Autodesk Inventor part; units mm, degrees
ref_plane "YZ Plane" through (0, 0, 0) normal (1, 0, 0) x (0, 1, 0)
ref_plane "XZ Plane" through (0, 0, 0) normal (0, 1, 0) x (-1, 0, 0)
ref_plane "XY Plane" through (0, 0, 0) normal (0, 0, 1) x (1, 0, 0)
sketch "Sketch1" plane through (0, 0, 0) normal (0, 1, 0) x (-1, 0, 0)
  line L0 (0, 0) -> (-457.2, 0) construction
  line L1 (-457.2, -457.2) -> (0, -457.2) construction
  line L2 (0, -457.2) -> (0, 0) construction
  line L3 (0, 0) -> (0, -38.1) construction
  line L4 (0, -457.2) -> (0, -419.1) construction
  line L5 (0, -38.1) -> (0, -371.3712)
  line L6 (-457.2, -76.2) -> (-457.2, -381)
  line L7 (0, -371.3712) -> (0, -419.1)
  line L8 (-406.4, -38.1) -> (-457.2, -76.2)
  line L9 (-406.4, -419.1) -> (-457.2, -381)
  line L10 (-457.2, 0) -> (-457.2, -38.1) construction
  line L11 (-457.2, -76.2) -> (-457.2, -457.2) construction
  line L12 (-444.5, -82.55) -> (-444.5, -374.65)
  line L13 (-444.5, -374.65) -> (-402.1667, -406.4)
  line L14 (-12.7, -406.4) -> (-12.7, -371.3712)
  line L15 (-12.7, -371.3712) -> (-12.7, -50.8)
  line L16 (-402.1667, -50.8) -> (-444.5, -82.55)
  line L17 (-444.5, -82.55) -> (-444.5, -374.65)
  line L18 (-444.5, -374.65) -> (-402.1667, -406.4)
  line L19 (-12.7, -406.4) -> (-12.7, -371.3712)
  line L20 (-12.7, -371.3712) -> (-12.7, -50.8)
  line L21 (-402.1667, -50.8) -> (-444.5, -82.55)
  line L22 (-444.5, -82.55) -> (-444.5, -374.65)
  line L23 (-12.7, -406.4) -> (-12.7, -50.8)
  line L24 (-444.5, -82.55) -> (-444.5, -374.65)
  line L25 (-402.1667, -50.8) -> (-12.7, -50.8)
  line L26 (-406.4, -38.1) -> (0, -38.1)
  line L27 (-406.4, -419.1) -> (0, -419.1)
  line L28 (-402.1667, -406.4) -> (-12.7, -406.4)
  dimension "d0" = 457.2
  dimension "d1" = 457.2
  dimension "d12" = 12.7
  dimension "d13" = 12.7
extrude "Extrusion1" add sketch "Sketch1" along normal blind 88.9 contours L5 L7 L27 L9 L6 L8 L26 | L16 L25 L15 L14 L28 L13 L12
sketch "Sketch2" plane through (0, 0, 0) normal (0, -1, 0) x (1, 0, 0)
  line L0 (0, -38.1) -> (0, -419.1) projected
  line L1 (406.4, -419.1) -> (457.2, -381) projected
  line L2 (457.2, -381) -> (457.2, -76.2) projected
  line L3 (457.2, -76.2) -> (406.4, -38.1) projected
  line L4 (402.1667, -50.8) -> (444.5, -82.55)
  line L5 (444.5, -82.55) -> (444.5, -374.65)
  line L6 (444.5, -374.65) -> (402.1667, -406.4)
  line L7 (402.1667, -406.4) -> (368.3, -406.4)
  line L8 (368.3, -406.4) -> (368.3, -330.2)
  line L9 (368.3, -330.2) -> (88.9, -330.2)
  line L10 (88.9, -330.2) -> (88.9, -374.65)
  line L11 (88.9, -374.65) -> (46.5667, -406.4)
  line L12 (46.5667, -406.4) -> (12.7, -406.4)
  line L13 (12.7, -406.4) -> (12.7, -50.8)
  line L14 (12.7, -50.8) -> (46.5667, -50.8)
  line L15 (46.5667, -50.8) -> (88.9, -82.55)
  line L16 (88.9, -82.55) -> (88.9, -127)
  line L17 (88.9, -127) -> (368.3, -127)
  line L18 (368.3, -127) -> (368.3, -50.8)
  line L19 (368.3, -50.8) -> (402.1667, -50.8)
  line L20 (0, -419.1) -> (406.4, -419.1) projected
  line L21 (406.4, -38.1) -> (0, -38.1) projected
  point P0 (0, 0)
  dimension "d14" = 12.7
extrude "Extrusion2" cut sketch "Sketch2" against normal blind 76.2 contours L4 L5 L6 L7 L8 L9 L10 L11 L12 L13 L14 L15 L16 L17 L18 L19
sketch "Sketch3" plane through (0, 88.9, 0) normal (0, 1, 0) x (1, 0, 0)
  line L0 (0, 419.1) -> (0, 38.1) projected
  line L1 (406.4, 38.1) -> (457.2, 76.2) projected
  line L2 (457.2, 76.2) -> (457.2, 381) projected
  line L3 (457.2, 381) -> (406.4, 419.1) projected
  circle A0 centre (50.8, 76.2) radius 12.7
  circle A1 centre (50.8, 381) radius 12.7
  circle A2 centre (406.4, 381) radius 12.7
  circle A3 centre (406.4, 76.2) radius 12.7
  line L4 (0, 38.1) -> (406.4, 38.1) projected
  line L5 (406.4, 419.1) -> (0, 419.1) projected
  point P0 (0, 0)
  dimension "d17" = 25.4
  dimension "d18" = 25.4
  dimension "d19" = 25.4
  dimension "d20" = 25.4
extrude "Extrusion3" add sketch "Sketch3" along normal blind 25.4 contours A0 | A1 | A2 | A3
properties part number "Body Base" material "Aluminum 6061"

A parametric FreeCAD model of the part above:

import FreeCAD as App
import Part
import Sketcher
from FreeCAD import Vector
Q = App.Units.Quantity

doc = App.newDocument("Part")
body = doc.addObject("PartDesign::Body", "Body")

# Sketch on XZ plane
sketch1 = body.newObject("Sketcher::SketchObject", "Sketch")
sketch1.AttachmentSupport = (doc.getObject("XZ_Plane"), [""])
sketch1.MapMode = "FlatFace"
sketch1.addGeometry([
    Part.LineSegment(Vector(0, -38.1, 0), Vector(406.4, -38.1, 0)),  # 0
    Part.LineSegment(Vector(406.4, -38.1, 0), Vector(457.2, -76.2, 0)),  # 1
    Part.LineSegment(Vector(457.2, -76.2, 0), Vector(457.2, -381, 0)),  # 2
    Part.LineSegment(Vector(457.2, -381, 0), Vector(406.4, -419.1, 0)),  # 3
    Part.LineSegment(Vector(406.4, -419.1, 0), Vector(0, -419.1, 0)),  # 4
    Part.LineSegment(Vector(0, -419.1, 0), Vector(0, -38.1, 0)),  # 5
], False)
sketch1.addConstraint([
    Sketcher.Constraint("Coincident", 0, 2, 1, 1),
    Sketcher.Constraint("Coincident", 1, 2, 2, 1),
    Sketcher.Constraint("Coincident", 2, 2, 3, 1),
    Sketcher.Constraint("Coincident", 3, 2, 4, 1),
    Sketcher.Constraint("Coincident", 4, 2, 5, 1),
    Sketcher.Constraint("Coincident", 5, 2, 0, 1),
    Sketcher.Constraint("Horizontal", 0),
    Sketcher.Constraint("Vertical", 2),
    Sketcher.Constraint("Horizontal", 4),
    Sketcher.Constraint("Vertical", 5),
    Sketcher.Constraint("PointOnObject", 4, 2, -2),
    Sketcher.Constraint("Vertical", 0, 2, 3, 2),
    Sketcher.Constraint("Equal", 1, 3),
    Sketcher.Constraint("DistanceX", -1, 1, 1, 2, Q("18 in")),
    Sketcher.Constraint("DistanceX", 0, 1, 0, 2, Q("16 in")),
    Sketcher.Constraint("DistanceY", 2, 2, 2, 1, Q("12 in")),
    Sketcher.Constraint("DistanceY", 5, 1, 5, 2, Q("15 in")),
    Sketcher.Constraint("DistanceY", 1, 2, -1, 1, Q("3 in")),
])
pad1 = body.newObject("PartDesign::Pad", "Pad")
pad1.Profile = sketch1
pad1.Length = Q("3.5 in")
pad1.Reversed = True

# Sketch on XZ plane
sketch2 = body.newObject("Sketcher::SketchObject", "Sketch001")
sketch2.AttachmentSupport = (doc.getObject("XZ_Plane"), [""])
sketch2.MapMode = "FlatFace"
sketch2.addGeometry([
    Part.LineSegment(Vector(444.5, -82.55, 0), Vector(402.1667, -50.8, 0)),  # 0
    Part.LineSegment(Vector(402.1667, -50.8, 0), Vector(368.3, -50.8, 0)),  # 1
    Part.LineSegment(Vector(368.3, -50.8, 0), Vector(368.3, -127, 0)),  # 2
    Part.LineSegment(Vector(368.3, -127, 0), Vector(88.9, -127, 0)),  # 3
    Part.LineSegment(Vector(88.9, -127, 0), Vector(88.9, -82.55, 0)),  # 4
    Part.LineSegment(Vector(88.9, -82.55, 0), Vector(46.5667, -50.8, 0)),  # 5
    Part.LineSegment(Vector(46.5667, -50.8, 0), Vector(12.7, -50.8, 0)),  # 6
    Part.LineSegment(Vector(12.7, -50.8, 0), Vector(12.7, -406.4, 0)),  # 7
    Part.LineSegment(Vector(12.7, -406.4, 0), Vector(46.5667, -406.4, 0)),  # 8
    Part.LineSegment(Vector(46.5667, -406.4, 0), Vector(88.9, -374.65, 0)),  # 9
    Part.LineSegment(Vector(88.9, -374.65, 0), Vector(88.9, -330.2, 0)),  # 10
    Part.LineSegment(Vector(88.9, -330.2, 0), Vector(368.3, -330.2, 0)),  # 11
    Part.LineSegment(Vector(368.3, -330.2, 0), Vector(368.3, -406.4, 0)),  # 12
    Part.LineSegment(Vector(368.3, -406.4, 0), Vector(402.1667, -406.4, 0)),  # 13
    Part.LineSegment(Vector(402.1667, -406.4, 0), Vector(444.5, -374.65, 0)),  # 14
    Part.LineSegment(Vector(444.5, -374.65, 0), Vector(444.5, -82.55, 0)),  # 15
], False)
sketch2.addConstraint([
    Sketcher.Constraint("Coincident", 0, 2, 1, 1),
    Sketcher.Constraint("Coincident", 1, 2, 2, 1),
    Sketcher.Constraint("Coincident", 2, 2, 3, 1),
    Sketcher.Constraint("Coincident", 3, 2, 4, 1),
    Sketcher.Constraint("Coincident", 4, 2, 5, 1),
    Sketcher.Constraint("Coincident", 5, 2, 6, 1),
    Sketcher.Constraint("Coincident", 6, 2, 7, 1),
    Sketcher.Constraint("Coincident", 7, 2, 8, 1),
    Sketcher.Constraint("Coincident", 8, 2, 9, 1),
    Sketcher.Constraint("Coincident", 9, 2, 10, 1),
    Sketcher.Constraint("Coincident", 10, 2, 11, 1),
    Sketcher.Constraint("Coincident", 11, 2, 12, 1),
    Sketcher.Constraint("Coincident", 12, 2, 13, 1),
    Sketcher.Constraint("Coincident", 13, 2, 14, 1),
    Sketcher.Constraint("Coincident", 14, 2, 15, 1),
    Sketcher.Constraint("Coincident", 15, 2, 0, 1),
    Sketcher.Constraint("Horizontal", 1),
    Sketcher.Constraint("Vertical", 2),
    Sketcher.Constraint("Horizontal", 3),
    Sketcher.Constraint("Vertical", 4),
    Sketcher.Constraint("Horizontal", 6),
    Sketcher.Constraint("Vertical", 7),
    Sketcher.Constraint("Horizontal", 8),
    Sketcher.Constraint("Vertical", 10),
    Sketcher.Constraint("Horizontal", 11),
    Sketcher.Constraint("Vertical", 12),
    Sketcher.Constraint("Horizontal", 13),
    Sketcher.Constraint("Vertical", 15),
    Sketcher.Constraint("Parallel", 0, 5),
    Sketcher.Constraint("Parallel", 9, 14),
    Sketcher.Constraint("Horizontal", 1, 2, 5, 2),
    Sketcher.Constraint("Horizontal", 8, 2, 12, 2),
    Sketcher.Constraint("Horizontal", 9, 2, 14, 2),
    Sketcher.Constraint("Horizontal", 4, 2, 15, 2),
    Sketcher.Constraint("Vertical", 5, 2, 8, 2),
    Sketcher.Constraint("Vertical", 4, 2, 9, 2),
    Sketcher.Constraint("Vertical", 2, 2, 11, 2),
    Sketcher.Constraint("Equal", 1, 6),
    Sketcher.Constraint("Equal", 4, 10),
    Sketcher.Constraint("Equal", 2, 12),
    Sketcher.Constraint("DistanceX", -1, 1, 6, 2, Q("0.5 in")),
    Sketcher.Constraint("DistanceX", 3, 2, 3, 1, Q("11 in")),
    Sketcher.Constraint("DistanceY", 2, 2, 2, 1, Q("3 in")),
    Sketcher.Constraint("DistanceY", 7, 2, 7, 1, Q("14 in")),
    Sketcher.Constraint("DistanceY", 15, 1, 15, 2, Q("11.5 in")),
    Sketcher.Constraint("DistanceY", 0, 2, -1, 1, Q("2 in")),
    Sketcher.Constraint("DistanceX", 5, 2, 0, 2, Q("14 in")),
    Sketcher.Constraint("Angle", 0, Q("143.13 deg")),
])
pocket1 = body.newObject("PartDesign::Pocket", "Pocket")
pocket1.Profile = sketch2
pocket1.Length = Q("3 in")

# Sketch on XZ plane
sketch3 = body.newObject("Sketcher::SketchObject", "Sketch002")
sketch3.AttachmentSupport = (doc.getObject("XZ_Plane"), [""])
sketch3.MapMode = "FlatFace"
sketch3.AttachmentOffset = App.Placement(Vector(0, 0, -3.5 * 25.4), App.Rotation())
sketch3.addGeometry([
    Part.Circle(Vector(50.8, -76.2, 0), Vector(0, 0, 1), 12.7),
    Part.Circle(Vector(50.8, -381, 0), Vector(0, 0, 1), 12.7),
    Part.Circle(Vector(406.4, -381, 0), Vector(0, 0, 1), 12.7),
    Part.Circle(Vector(406.4, -76.2, 0), Vector(0, 0, 1), 12.7),
], False)
sketch3.addConstraint([
    Sketcher.Constraint("Equal", 0, 1),
    Sketcher.Constraint("Equal", 1, 2),
    Sketcher.Constraint("Equal", 2, 3),
    Sketcher.Constraint("Horizontal", 1, 3, 2, 3),
    Sketcher.Constraint("Horizontal", 0, 3, 3, 3),
    Sketcher.Constraint("Vertical", 0, 3, 1, 3),
    Sketcher.Constraint("Vertical", 2, 3, 3, 3),
    Sketcher.Constraint("Diameter", 0, Q("1 in")),
    Sketcher.Constraint("DistanceX", -1, 1, 0, 3, Q("2 in")),
    Sketcher.Constraint("DistanceY", 0, 3, -1, 1, Q("3 in")),
    Sketcher.Constraint("DistanceY", 1, 3, -1, 1, Q("15 in")),
    Sketcher.Constraint("DistanceX", -1, 1, 2, 3, Q("16 in")),
])
pad2 = body.newObject("PartDesign::Pad", "Pad001")
pad2.Profile = sketch3
pad2.Length = Q("1 in")
pad2.Reversed = True

doc.recompute()
